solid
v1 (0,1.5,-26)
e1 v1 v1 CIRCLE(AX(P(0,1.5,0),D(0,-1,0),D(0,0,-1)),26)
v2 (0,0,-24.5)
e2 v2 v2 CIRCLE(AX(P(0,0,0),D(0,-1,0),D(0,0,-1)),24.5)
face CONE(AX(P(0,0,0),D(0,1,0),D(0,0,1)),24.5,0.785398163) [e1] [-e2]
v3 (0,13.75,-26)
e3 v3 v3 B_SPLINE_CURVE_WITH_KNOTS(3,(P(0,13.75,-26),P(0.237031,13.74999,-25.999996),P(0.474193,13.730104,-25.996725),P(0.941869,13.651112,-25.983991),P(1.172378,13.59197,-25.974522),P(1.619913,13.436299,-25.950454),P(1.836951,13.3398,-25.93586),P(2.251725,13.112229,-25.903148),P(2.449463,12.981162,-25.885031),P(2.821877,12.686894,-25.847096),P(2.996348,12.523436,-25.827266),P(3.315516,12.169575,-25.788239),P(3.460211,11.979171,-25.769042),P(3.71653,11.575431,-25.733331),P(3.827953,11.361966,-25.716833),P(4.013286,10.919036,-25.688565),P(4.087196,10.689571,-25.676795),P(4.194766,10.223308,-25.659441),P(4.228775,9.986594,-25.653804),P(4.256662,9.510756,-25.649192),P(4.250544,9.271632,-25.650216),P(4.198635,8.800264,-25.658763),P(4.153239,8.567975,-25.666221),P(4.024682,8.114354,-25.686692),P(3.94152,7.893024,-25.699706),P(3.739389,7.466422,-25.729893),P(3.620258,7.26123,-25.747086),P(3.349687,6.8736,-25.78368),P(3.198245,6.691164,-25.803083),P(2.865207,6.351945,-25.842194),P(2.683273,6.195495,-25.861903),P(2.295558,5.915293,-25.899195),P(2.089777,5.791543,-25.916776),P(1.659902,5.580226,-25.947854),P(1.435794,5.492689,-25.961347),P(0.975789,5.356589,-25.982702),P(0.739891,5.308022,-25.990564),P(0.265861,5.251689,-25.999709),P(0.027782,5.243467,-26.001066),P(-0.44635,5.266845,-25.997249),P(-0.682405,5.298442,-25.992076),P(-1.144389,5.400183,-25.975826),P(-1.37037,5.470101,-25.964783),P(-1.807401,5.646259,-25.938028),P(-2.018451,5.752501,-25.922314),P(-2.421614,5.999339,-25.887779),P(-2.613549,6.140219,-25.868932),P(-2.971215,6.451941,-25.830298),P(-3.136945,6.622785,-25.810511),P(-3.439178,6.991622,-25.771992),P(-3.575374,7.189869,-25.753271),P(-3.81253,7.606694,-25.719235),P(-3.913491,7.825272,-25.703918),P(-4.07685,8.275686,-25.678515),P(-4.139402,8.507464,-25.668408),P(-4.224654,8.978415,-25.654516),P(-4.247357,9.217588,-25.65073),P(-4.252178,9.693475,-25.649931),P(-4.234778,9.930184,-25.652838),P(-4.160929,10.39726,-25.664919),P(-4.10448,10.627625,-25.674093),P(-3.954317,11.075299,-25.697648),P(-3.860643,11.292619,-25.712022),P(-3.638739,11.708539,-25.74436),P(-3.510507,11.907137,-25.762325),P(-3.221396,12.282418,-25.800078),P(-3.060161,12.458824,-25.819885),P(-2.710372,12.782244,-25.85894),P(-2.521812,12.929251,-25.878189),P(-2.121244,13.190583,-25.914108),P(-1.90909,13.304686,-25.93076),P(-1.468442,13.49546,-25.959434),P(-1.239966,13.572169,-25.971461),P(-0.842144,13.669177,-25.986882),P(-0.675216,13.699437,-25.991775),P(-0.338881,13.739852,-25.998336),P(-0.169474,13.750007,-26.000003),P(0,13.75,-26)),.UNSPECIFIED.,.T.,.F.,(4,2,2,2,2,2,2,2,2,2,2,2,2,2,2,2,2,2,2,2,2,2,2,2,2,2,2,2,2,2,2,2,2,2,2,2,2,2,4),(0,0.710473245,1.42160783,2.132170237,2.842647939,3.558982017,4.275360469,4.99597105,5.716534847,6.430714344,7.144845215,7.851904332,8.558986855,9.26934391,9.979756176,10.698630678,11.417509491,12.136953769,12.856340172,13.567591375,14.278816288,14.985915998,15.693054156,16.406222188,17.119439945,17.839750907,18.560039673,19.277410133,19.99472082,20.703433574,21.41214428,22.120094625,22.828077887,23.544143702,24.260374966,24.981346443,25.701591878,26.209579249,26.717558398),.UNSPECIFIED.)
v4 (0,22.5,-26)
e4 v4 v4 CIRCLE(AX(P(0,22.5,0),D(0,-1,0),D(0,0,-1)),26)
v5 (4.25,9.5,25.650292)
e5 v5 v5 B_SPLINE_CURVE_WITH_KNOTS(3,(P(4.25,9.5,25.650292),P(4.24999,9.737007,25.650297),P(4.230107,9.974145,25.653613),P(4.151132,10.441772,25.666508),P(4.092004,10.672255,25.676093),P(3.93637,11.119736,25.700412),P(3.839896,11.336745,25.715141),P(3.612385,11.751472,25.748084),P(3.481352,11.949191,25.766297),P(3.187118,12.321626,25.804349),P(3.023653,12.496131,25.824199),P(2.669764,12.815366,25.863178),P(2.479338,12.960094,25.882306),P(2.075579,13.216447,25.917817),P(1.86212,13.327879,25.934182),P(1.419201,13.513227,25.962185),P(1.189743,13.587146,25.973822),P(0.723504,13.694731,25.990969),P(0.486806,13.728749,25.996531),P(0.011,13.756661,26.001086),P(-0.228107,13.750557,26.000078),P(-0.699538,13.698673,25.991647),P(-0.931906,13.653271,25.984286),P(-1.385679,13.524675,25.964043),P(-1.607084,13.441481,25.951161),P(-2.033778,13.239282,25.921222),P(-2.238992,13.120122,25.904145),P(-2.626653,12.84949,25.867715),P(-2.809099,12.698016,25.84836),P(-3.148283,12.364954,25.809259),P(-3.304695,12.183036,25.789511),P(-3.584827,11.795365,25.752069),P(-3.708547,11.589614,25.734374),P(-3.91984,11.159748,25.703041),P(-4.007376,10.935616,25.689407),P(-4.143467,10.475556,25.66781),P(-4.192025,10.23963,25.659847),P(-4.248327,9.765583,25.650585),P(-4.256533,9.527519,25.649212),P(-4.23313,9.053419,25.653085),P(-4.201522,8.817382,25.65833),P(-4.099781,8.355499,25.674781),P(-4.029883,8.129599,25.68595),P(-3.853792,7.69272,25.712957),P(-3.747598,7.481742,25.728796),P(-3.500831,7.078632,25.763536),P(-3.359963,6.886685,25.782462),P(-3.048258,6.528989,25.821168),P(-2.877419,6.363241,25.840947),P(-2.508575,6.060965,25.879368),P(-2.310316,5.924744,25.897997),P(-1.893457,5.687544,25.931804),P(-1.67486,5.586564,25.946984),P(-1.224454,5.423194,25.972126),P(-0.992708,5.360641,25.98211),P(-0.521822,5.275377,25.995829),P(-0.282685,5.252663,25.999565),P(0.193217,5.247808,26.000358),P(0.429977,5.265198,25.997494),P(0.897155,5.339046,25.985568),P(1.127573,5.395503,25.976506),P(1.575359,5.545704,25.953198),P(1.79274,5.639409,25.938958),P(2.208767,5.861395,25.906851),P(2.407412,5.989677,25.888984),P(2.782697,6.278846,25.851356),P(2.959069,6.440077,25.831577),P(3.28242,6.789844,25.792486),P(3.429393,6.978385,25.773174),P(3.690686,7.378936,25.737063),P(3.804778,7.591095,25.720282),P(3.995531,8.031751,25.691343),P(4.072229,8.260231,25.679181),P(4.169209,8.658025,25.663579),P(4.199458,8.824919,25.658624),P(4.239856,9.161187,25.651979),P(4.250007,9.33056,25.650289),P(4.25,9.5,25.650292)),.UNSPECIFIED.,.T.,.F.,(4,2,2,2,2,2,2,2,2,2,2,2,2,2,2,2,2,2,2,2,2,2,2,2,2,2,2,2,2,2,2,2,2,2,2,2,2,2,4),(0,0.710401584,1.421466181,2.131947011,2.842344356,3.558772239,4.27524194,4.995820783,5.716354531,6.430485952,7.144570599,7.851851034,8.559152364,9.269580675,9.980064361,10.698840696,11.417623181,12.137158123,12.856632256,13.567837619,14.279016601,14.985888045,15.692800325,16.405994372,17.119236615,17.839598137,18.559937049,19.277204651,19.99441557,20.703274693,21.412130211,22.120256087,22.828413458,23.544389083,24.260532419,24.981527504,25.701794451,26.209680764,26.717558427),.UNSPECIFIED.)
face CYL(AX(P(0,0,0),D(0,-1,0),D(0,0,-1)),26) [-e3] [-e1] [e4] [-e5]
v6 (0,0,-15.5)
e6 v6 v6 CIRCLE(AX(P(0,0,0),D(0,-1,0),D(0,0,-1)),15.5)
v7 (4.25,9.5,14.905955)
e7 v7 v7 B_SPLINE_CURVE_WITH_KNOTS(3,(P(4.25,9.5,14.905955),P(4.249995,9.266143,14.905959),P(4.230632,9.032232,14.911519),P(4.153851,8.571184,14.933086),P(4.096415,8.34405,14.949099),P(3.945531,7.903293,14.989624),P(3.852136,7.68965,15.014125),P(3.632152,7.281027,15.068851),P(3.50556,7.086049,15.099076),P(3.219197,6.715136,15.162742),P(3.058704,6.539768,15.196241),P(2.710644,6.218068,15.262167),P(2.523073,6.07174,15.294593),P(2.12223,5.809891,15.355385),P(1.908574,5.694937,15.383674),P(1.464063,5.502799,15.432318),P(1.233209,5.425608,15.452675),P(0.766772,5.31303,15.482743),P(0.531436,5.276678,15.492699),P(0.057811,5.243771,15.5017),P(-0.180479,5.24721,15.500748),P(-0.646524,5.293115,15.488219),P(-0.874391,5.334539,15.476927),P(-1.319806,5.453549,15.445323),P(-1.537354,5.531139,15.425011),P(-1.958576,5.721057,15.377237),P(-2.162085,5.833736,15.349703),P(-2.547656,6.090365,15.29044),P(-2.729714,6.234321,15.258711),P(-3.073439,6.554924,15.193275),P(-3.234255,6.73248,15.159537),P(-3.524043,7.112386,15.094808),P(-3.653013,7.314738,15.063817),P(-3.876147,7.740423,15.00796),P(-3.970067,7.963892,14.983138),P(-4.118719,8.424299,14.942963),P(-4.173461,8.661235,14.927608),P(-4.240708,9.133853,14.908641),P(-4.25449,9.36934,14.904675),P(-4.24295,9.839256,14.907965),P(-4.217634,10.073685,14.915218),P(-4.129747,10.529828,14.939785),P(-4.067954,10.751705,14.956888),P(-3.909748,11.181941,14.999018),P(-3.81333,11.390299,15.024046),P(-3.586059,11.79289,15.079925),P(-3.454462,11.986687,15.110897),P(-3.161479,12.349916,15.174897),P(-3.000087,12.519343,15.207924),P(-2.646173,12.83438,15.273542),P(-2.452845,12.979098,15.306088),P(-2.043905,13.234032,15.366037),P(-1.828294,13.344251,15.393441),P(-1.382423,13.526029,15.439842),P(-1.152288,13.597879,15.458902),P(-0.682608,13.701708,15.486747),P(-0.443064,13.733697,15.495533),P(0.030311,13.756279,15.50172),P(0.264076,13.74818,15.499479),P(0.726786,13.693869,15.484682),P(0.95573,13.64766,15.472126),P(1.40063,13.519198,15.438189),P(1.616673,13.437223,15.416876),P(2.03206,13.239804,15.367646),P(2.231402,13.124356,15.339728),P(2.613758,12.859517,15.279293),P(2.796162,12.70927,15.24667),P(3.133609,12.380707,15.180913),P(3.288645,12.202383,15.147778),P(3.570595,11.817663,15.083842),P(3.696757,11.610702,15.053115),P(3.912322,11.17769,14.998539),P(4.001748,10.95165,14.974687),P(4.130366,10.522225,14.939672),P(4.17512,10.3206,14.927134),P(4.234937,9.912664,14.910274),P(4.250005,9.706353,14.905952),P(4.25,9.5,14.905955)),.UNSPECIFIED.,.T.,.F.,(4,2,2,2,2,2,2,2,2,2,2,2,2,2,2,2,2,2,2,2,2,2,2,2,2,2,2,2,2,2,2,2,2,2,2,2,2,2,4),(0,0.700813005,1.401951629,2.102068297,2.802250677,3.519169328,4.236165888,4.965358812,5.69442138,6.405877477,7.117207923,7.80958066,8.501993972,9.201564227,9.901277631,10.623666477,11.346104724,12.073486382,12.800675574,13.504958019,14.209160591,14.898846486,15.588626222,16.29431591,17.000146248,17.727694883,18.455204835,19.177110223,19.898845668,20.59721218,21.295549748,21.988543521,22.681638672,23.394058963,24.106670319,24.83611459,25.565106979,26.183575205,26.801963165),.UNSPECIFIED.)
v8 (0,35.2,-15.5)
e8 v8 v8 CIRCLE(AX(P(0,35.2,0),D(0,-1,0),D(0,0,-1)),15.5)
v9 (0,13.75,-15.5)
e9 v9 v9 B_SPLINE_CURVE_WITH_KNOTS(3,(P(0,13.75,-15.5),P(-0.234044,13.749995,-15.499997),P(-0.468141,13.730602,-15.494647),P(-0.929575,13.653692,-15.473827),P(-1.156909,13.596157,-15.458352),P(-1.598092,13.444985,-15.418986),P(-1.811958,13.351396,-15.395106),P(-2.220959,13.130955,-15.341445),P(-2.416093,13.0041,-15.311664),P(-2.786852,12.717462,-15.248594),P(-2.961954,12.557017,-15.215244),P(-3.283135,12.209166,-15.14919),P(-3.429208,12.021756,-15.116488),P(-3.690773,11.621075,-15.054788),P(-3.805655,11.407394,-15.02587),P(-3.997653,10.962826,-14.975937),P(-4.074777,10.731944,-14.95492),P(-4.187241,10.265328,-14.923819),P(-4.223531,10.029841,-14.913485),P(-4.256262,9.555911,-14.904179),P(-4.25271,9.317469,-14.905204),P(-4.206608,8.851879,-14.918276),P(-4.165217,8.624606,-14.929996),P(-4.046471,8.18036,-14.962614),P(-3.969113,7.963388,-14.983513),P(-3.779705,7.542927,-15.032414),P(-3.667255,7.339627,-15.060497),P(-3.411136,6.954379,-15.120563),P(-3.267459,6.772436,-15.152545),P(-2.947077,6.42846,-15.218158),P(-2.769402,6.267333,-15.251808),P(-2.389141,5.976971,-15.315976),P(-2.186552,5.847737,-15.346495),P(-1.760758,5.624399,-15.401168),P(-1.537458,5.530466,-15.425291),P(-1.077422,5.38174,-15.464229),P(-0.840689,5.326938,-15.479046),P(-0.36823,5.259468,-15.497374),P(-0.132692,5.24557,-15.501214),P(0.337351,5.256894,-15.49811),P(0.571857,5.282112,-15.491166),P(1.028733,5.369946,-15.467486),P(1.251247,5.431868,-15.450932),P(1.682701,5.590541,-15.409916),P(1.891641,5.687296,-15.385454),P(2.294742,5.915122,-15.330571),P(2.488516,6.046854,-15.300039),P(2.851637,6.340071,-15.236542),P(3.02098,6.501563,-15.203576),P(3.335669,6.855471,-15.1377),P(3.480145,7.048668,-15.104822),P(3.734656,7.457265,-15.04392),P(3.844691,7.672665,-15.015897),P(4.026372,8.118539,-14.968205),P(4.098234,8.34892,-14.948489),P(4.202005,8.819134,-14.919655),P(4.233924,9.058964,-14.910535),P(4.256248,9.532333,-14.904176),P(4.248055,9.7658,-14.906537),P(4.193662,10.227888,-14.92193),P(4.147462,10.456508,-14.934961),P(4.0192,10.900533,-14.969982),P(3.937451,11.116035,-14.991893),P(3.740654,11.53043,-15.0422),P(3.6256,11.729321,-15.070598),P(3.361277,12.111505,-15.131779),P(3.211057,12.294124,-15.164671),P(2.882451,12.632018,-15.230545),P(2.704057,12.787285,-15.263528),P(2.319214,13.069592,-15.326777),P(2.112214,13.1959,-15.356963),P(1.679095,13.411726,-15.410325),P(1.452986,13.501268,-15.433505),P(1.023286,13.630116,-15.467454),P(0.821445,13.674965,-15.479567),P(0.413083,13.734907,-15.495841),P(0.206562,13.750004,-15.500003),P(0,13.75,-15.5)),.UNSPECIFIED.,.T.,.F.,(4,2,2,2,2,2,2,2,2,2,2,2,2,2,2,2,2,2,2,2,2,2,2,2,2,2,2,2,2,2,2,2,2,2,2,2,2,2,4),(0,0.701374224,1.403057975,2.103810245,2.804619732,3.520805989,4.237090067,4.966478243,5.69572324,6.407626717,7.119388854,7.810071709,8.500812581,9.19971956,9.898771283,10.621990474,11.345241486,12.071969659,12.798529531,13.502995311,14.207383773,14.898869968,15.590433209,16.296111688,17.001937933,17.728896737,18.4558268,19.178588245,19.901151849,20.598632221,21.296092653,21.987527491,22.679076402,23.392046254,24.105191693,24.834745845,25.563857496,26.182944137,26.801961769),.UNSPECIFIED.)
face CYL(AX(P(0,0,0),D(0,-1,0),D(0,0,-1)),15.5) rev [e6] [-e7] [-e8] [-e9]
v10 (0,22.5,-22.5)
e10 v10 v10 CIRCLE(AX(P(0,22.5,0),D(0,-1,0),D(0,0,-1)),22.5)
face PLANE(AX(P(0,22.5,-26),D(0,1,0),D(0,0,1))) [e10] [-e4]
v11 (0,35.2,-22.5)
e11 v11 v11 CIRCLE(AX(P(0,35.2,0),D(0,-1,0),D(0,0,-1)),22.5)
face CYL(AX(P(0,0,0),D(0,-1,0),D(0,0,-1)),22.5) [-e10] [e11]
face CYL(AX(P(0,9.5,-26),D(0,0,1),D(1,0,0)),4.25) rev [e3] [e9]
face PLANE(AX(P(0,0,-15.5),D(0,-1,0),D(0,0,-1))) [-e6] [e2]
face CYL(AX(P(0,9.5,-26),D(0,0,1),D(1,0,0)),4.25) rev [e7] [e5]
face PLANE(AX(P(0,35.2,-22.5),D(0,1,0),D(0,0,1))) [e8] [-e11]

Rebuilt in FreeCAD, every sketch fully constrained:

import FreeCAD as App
import Part
import Sketcher
Q = App.Units.Quantity


def add_polygon(sketch, points):
    """Adds a closed chain of lines whose ends are joined by coincident constraints."""
    first, n = sketch.GeometryCount, len(points)
    for a, b in zip(points, points[1:] + points[:1]):
        sketch.addGeometry(Part.LineSegment(App.Vector(*a, 0), App.Vector(*b, 0)), False)
    for i in range(n):
        sketch.addConstraint(Sketcher.Constraint("Coincident", first + i, 2, first + (i + 1) % n, 1))

doc = App.newDocument("Part")
body = doc.addObject("PartDesign::Body", "Body")

# Sketch on YZ plane
sketch1 = body.newObject("Sketcher::SketchObject", "Sketch")
sketch1.AttachmentSupport = (doc.getObject("YZ_Plane"), [""])
sketch1.MapMode = "FlatFace"
add_polygon(sketch1, [(35.2, -15.5), (0, -15.5), (0, -24.5), (1.5, -26), (22.5, -26), (22.5, -22.5), (35.2, -22.5)])  # lines 0-6
sketch1.addConstraint(Sketcher.Constraint("Horizontal", 0))
sketch1.addConstraint(Sketcher.Constraint("Vertical", 1))
sketch1.addConstraint(Sketcher.Constraint("Horizontal", 3))
sketch1.addConstraint(Sketcher.Constraint("Vertical", 4))
sketch1.addConstraint(Sketcher.Constraint("Horizontal", 5))
sketch1.addConstraint(Sketcher.Constraint("Vertical", 6))
sketch1.addConstraint(Sketcher.Constraint("PointOnObject", 0, 2, -2))
sketch1.addConstraint(Sketcher.Constraint("DistanceX", 3, 1, 3, 2, Q("21 mm")))
sketch1.addConstraint(Sketcher.Constraint("DistanceY", 1, 2, 1, 1, Q("9 mm")))
sketch1.addConstraint(Sketcher.Constraint("DistanceY", 6, 1, 6, 2, Q("7 mm")))
sketch1.addConstraint(Sketcher.Constraint("Angle", 2, Q("-45 deg")))
sketch1.addConstraint(Sketcher.Constraint("DistanceX", 0, 2, 0, 1, Q("35.2 mm")))
sketch1.addConstraint(Sketcher.Constraint("DistanceX", 5, 1, 5, 2, Q("12.7 mm")))
sketch1.addConstraint(Sketcher.Constraint("DistanceY", 2, 2, -1, 1, Q("26 mm")))
revolution = body.newObject("PartDesign::Revolution", "Revolution")
revolution.Profile = sketch1
revolution.ReferenceAxis = (sketch1, ["H_Axis"])
revolution.Angle = 360

# Sketch on XY plane
sketch2 = body.newObject("Sketcher::SketchObject", "Sketch001")
sketch2.AttachmentSupport = (doc.getObject("XY_Plane"), [""])
sketch2.MapMode = "FlatFace"
sketch2.addGeometry(Part.Circle(App.Vector(0, 9.5, 0), App.Vector(0, 0, 1), 4.2), False)
sketch2.addConstraint(Sketcher.Constraint("PointOnObject", 0, 3, -2))
sketch2.addConstraint(Sketcher.Constraint("Diameter", 0, Q("8.5 mm")))
sketch2.addConstraint(Sketcher.Constraint("DistanceY", -1, 1, 0, 3, Q("9.5 mm")))
pocket1 = body.newObject("PartDesign::Pocket", "Pocket")
pocket1.Profile = sketch2
pocket1.Type = "ThroughAll"
pocket1.Midplane = True

doc.recompute()
